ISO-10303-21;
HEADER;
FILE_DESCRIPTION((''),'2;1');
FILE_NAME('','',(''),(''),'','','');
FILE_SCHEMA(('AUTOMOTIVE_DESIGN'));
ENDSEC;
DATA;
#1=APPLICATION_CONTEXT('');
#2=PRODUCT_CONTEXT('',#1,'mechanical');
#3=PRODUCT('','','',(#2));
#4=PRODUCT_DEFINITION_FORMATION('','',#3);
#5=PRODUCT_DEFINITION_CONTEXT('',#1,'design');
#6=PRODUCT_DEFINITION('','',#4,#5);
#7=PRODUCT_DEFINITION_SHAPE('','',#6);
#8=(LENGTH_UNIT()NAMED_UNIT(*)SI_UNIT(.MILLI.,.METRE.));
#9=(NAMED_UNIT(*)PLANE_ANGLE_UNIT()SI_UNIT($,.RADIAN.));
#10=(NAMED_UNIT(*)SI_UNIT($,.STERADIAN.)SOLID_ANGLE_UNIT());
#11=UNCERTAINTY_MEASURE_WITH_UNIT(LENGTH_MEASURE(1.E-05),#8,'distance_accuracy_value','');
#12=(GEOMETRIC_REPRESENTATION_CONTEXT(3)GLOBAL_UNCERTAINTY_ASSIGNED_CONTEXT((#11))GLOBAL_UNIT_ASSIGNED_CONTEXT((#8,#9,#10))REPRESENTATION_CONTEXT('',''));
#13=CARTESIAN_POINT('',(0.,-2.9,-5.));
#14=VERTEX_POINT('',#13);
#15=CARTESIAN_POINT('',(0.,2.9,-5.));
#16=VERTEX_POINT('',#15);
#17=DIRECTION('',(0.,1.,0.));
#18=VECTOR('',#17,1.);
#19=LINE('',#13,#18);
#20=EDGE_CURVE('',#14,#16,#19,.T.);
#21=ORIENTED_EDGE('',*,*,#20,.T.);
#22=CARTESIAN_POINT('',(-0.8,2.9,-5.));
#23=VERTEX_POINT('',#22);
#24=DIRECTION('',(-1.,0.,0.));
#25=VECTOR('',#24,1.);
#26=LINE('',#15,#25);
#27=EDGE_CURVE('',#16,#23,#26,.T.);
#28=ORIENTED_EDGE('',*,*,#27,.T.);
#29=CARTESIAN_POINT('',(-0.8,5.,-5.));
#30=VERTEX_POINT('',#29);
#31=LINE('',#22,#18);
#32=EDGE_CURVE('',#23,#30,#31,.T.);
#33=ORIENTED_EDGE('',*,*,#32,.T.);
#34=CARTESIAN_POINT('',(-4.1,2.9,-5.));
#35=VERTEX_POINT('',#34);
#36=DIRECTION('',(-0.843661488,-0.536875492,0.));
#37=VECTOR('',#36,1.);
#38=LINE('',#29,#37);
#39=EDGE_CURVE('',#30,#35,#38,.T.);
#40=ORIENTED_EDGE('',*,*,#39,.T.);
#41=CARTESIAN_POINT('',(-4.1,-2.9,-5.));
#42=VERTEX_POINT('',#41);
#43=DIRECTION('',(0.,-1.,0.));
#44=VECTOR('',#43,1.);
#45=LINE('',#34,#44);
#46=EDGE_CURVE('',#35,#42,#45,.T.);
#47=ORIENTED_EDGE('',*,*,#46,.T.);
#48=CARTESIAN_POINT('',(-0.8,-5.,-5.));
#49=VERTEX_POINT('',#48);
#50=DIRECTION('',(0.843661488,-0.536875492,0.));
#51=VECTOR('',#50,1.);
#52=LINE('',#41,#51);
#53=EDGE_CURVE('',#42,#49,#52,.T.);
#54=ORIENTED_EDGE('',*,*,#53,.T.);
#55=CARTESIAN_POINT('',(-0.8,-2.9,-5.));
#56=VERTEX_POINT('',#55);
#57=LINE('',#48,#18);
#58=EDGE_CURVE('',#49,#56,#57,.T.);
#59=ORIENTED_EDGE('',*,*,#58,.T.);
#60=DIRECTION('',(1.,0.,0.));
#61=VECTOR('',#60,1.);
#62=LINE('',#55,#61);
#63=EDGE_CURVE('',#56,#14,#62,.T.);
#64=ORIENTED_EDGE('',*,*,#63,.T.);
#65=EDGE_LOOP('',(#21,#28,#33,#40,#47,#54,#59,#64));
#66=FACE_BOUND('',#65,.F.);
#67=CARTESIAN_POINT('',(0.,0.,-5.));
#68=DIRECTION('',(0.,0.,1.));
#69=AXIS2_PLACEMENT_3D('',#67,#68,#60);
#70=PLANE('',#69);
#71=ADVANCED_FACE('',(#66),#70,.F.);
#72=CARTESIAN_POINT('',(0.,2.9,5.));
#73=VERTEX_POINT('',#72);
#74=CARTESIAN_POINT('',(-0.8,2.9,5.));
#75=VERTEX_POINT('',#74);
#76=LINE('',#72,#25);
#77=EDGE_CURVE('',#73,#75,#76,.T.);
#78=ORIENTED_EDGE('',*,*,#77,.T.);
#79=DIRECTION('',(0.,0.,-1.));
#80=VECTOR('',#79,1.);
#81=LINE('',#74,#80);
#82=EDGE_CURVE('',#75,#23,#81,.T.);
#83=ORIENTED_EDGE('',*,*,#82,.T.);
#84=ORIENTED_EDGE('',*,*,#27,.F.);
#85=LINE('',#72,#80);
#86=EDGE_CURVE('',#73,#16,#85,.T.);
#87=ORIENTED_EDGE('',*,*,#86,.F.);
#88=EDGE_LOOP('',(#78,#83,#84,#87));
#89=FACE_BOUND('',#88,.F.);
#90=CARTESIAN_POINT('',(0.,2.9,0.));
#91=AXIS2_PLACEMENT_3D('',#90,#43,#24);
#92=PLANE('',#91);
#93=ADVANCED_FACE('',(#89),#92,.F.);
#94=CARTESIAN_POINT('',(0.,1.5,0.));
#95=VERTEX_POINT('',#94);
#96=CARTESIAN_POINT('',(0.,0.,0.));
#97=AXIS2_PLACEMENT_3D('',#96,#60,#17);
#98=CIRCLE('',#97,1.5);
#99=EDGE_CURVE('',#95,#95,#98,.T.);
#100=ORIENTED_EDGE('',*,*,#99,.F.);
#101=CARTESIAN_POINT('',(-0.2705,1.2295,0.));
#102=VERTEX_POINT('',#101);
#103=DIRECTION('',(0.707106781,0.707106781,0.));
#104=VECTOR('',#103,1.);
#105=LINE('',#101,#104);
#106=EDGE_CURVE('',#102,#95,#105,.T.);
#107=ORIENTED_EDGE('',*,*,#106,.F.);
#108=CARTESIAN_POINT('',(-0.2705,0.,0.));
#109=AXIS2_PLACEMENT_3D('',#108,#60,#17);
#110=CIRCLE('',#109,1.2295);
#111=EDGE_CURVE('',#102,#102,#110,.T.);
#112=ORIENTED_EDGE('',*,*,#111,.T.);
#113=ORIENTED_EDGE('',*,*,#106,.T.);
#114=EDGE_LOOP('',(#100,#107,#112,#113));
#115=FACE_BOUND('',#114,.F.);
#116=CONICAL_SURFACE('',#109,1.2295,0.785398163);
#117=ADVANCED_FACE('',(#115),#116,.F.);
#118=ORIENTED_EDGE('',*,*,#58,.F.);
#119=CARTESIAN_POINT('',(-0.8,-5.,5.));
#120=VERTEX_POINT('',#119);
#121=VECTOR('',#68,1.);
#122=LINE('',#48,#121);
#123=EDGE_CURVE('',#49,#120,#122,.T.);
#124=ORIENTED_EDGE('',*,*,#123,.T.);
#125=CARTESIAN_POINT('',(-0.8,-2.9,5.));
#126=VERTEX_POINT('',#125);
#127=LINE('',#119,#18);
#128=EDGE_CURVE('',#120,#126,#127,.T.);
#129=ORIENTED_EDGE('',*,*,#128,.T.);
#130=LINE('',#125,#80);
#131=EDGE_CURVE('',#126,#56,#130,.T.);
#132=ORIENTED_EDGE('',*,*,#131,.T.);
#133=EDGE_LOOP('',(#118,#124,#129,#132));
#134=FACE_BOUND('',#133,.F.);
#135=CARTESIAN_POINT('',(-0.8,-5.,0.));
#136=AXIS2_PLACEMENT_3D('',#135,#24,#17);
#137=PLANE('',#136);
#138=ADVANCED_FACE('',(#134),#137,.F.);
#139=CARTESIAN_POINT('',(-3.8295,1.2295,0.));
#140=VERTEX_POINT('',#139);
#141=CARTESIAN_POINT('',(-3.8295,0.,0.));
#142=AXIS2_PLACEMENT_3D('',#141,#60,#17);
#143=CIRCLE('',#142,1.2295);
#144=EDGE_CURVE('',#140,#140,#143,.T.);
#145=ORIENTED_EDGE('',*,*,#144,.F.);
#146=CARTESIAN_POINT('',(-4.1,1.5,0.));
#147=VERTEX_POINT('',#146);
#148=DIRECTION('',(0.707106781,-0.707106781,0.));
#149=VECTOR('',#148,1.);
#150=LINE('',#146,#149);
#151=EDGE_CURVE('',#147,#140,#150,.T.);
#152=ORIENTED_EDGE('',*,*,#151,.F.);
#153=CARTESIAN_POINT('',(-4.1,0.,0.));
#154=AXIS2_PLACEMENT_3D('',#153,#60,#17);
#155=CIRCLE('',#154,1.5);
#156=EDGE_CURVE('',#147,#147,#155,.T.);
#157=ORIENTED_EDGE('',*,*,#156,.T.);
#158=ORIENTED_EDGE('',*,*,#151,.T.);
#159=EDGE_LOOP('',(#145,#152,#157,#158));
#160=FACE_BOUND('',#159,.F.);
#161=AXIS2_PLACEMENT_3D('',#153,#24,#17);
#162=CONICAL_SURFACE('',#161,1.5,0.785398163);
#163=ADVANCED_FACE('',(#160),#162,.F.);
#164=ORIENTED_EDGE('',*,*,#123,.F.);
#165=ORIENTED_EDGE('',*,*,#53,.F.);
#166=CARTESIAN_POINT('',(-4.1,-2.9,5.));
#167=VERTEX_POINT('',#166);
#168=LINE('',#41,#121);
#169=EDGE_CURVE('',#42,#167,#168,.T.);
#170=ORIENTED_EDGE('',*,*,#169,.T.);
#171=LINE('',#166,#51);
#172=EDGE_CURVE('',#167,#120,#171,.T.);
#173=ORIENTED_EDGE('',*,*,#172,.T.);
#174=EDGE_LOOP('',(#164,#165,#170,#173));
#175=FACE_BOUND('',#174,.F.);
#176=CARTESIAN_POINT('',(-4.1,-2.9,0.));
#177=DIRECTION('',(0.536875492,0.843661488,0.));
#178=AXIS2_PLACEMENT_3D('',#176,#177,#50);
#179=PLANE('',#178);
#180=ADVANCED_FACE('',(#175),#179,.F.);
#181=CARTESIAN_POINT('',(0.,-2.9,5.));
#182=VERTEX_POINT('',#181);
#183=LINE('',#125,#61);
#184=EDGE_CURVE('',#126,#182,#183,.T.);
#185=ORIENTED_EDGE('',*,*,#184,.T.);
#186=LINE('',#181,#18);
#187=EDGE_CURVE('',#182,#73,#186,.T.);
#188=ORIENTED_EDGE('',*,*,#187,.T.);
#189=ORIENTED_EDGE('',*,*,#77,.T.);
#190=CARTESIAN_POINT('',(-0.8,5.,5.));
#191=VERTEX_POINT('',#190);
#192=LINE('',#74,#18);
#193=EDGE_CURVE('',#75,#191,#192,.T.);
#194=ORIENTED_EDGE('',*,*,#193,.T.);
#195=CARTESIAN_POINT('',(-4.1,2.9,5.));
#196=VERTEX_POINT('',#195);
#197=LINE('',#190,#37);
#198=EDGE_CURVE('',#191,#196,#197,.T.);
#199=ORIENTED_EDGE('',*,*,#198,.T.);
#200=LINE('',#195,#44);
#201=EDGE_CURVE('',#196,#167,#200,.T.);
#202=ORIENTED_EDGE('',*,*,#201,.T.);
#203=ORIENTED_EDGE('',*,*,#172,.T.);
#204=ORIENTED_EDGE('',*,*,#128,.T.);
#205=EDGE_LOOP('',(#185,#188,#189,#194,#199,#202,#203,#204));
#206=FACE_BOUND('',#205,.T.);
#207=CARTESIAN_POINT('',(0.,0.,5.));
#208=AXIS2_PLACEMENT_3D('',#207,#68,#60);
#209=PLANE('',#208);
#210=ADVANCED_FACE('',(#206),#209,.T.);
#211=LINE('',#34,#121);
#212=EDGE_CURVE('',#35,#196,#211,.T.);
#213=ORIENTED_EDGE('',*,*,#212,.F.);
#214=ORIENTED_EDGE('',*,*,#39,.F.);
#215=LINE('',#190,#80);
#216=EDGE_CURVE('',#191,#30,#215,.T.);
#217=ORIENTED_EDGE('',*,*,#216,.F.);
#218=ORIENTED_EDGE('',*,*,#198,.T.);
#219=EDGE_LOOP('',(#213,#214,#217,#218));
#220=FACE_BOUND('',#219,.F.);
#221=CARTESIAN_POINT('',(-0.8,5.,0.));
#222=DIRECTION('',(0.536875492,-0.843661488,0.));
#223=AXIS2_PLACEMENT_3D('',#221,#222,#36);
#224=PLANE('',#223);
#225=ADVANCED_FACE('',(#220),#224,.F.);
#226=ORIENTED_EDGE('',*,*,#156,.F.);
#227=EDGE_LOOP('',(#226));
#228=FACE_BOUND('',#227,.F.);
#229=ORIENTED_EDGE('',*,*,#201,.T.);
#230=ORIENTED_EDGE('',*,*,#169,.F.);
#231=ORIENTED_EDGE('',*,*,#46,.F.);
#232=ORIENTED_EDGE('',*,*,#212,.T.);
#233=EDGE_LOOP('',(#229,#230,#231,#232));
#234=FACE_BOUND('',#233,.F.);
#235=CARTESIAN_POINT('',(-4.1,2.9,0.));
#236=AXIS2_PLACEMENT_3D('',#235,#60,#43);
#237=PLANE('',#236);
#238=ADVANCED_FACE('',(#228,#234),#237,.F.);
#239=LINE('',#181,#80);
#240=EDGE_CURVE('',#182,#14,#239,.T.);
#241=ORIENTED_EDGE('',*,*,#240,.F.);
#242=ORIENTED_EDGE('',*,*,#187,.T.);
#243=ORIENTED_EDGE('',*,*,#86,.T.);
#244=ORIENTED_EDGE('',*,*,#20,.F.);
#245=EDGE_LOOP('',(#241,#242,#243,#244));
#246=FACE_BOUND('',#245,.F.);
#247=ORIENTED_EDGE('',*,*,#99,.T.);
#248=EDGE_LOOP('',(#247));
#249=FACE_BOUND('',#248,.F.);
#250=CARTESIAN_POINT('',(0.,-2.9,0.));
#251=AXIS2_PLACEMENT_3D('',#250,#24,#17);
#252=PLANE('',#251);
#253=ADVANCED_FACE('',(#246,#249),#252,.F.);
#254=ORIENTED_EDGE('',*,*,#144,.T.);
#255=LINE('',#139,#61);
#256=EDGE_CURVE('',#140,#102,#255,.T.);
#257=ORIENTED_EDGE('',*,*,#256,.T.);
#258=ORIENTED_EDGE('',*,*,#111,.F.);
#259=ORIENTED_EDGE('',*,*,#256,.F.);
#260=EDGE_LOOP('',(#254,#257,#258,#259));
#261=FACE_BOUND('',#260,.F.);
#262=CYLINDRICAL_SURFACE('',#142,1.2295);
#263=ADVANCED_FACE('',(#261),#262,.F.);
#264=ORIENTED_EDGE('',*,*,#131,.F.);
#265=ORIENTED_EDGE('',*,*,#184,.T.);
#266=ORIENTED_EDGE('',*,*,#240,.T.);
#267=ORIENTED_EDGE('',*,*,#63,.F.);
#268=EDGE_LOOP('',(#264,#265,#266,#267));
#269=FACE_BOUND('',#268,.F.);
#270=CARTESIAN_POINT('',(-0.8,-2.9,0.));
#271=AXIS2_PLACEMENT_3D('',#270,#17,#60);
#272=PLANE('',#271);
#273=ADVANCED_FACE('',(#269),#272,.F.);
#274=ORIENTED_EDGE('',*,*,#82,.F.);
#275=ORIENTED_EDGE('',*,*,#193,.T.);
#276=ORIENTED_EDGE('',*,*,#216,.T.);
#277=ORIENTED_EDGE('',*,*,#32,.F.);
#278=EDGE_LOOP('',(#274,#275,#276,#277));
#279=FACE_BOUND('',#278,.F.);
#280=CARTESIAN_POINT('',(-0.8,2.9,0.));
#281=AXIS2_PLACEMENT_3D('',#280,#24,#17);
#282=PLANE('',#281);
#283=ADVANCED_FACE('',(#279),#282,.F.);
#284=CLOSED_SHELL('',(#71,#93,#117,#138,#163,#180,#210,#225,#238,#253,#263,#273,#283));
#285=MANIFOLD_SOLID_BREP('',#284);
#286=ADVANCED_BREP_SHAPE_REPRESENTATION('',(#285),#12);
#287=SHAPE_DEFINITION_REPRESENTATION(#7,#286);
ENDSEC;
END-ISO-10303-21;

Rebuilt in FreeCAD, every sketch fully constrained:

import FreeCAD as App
import Part
import Sketcher
Q = App.Units.Quantity

doc = App.newDocument("Part")
params = doc.addObject("Spreadsheet::Sheet", "Params")
for row, (alias, value) in enumerate([
    ("sketch1_width", "0.8 mm"),
    ("sketch1_height", "5.8 mm"),
    ("sketch1_height2", "2.1 mm"),
    ("pad1_length", "10 mm"),
    ("sketch2_width", "4.1 mm"),
    ("sketch2_height", "1.5 mm"),
    ("groove_angle", "360 deg"),
], start=1):
    params.set(f"A{row}", alias)
    params.set(f"B{row}", "=" + value)
    params.setAlias(f"B{row}", alias)

body = doc.addObject("PartDesign::Body", "Body")

# Sketch on XY plane
sketch1 = doc.addObject("Sketcher::SketchObject", "Sketch")
body.addObject(sketch1)
sketch1.AttachmentSupport = (doc.XY_Plane, [""])
sketch1.MapMode = "FlatFace"
sketch1.addGeometry([
    Part.LineSegment(App.Vector(-0.8, 5, 0), App.Vector(-4.1, 2.9, 0)),  # 0
    Part.LineSegment(App.Vector(-4.1, 2.9, 0), App.Vector(-4.1, -2.9, 0)),  # 1
    Part.LineSegment(App.Vector(-4.1, -2.9, 0), App.Vector(-0.8, -5, 0)),  # 2
    Part.LineSegment(App.Vector(-0.8, -5, 0), App.Vector(-0.8, -2.9, 0)),  # 3
    Part.LineSegment(App.Vector(-0.8, -2.9, 0), App.Vector(0, -2.9, 0)),  # 4
    Part.LineSegment(App.Vector(0, -2.9, 0), App.Vector(0, 2.9, 0)),  # 5
    Part.LineSegment(App.Vector(0, 2.9, 0), App.Vector(-0.8, 2.9, 0)),  # 6
    Part.LineSegment(App.Vector(-0.8, 2.9, 0), App.Vector(-0.8, 5, 0)),  # 7
], False)
sketch1.addConstraint([
    Sketcher.Constraint("Coincident", 0, 2, 1, 1),
    Sketcher.Constraint("Coincident", 1, 2, 2, 1),
    Sketcher.Constraint("Coincident", 2, 2, 3, 1),
    Sketcher.Constraint("Coincident", 3, 2, 4, 1),
    Sketcher.Constraint("Coincident", 4, 2, 5, 1),
    Sketcher.Constraint("Coincident", 5, 2, 6, 1),
    Sketcher.Constraint("Coincident", 6, 2, 7, 1),
    Sketcher.Constraint("Coincident", 7, 2, 0, 1),
    Sketcher.Constraint("Vertical", 1),
    Sketcher.Constraint("Vertical", 3),
    Sketcher.Constraint("Horizontal", 4),
    Sketcher.Constraint("Vertical", 5),
    Sketcher.Constraint("Horizontal", 6),
    Sketcher.Constraint("Vertical", 7),
    Sketcher.Constraint("Symmetric", 4, 2, 5, 2, -1, 1),
    Sketcher.Constraint("Symmetric", 2, 2, 7, 2, -1),
    Sketcher.Constraint("Horizontal", 1, 2, 3, 2),
    Sketcher.Constraint("Horizontal", 0, 2, 5, 2),
    Sketcher.Constraint("DistanceX", 4, 1, 4, 2, Q("0.8 mm")),
    Sketcher.Constraint("DistanceY", 1, 2, 1, 1, Q("5.8 mm")),
    Sketcher.Constraint("DistanceY", 3, 1, 3, 2, Q("2.1 mm")),
    Sketcher.Constraint("DistanceX", 0, 2, -1, 1, Q("4.1 mm")),
])
sketch1.setExpression("Constraints[18]", "Params.sketch1_width")
sketch1.setExpression("Constraints[19]", "Params.sketch1_height")
sketch1.setExpression("Constraints[20]", "Params.sketch1_height2")
pad1 = doc.addObject("PartDesign::Pad", "Pad")
body.addObject(pad1)
pad1.Profile = sketch1
pad1.setExpression("Length", "Params.pad1_length")
pad1.Midplane = True

# Sketch on XY plane
sketch2 = doc.addObject("Sketcher::SketchObject", "Sketch001")
body.addObject(sketch2)
sketch2.AttachmentSupport = (doc.XY_Plane, [""])
sketch2.MapMode = "FlatFace"
sketch2.addGeometry([
    Part.LineSegment(App.Vector(-4.1, 0, 0), App.Vector(0, 0, 0)),  # 0
    Part.LineSegment(App.Vector(0, 0, 0), App.Vector(0, 1.5, 0)),  # 1
    Part.LineSegment(App.Vector(0, 1.5, 0), App.Vector(-0.2705, 1.2295, 0)),  # 2
    Part.LineSegment(App.Vector(-0.2705, 1.2295, 0), App.Vector(-3.8295, 1.2295, 0)),  # 3
    Part.LineSegment(App.Vector(-3.8295, 1.2295, 0), App.Vector(-4.1, 1.5, 0)),  # 4
    Part.LineSegment(App.Vector(-4.1, 1.5, 0), App.Vector(-4.1, 0, 0)),  # 5
], False)
sketch2.addConstraint([
    Sketcher.Constraint("Coincident", 0, 2, 1, 1),
    Sketcher.Constraint("Coincident", 1, 2, 2, 1),
    Sketcher.Constraint("Coincident", 2, 2, 3, 1),
    Sketcher.Constraint("Coincident", 3, 2, 4, 1),
    Sketcher.Constraint("Coincident", 4, 2, 5, 1),
    Sketcher.Constraint("Coincident", 5, 2, 0, 1),
    Sketcher.Constraint("Horizontal", 0),
    Sketcher.Constraint("Vertical", 1),
    Sketcher.Constraint("Horizontal", 3),
    Sketcher.Constraint("Vertical", 5),
    Sketcher.Constraint("Coincident", 0, 2, -1, 1),
    Sketcher.Constraint("Perpendicular", 2, 4),
    Sketcher.Constraint("Horizontal", 1, 2, 4, 2),
    Sketcher.Constraint("Equal", 2, 4),
    Sketcher.Constraint("DistanceX", 0, 1, 0, 2, Q("4.1 mm")),
    Sketcher.Constraint("DistanceY", 1, 1, 1, 2, Q("1.5 mm")),
    Sketcher.Constraint("DistanceX", 3, 2, 3, 1, Q("3.559 mm")),
])
sketch2.setExpression("Constraints[14]", "Params.sketch2_width")
sketch2.setExpression("Constraints[15]", "Params.sketch2_height")
groove = doc.addObject("PartDesign::Groove", "Groove")
body.addObject(groove)
groove.Profile = sketch2
groove.ReferenceAxis = (sketch2, ["H_Axis"])
groove.setExpression("Angle", "Params.groove_angle")

doc.recompute()
